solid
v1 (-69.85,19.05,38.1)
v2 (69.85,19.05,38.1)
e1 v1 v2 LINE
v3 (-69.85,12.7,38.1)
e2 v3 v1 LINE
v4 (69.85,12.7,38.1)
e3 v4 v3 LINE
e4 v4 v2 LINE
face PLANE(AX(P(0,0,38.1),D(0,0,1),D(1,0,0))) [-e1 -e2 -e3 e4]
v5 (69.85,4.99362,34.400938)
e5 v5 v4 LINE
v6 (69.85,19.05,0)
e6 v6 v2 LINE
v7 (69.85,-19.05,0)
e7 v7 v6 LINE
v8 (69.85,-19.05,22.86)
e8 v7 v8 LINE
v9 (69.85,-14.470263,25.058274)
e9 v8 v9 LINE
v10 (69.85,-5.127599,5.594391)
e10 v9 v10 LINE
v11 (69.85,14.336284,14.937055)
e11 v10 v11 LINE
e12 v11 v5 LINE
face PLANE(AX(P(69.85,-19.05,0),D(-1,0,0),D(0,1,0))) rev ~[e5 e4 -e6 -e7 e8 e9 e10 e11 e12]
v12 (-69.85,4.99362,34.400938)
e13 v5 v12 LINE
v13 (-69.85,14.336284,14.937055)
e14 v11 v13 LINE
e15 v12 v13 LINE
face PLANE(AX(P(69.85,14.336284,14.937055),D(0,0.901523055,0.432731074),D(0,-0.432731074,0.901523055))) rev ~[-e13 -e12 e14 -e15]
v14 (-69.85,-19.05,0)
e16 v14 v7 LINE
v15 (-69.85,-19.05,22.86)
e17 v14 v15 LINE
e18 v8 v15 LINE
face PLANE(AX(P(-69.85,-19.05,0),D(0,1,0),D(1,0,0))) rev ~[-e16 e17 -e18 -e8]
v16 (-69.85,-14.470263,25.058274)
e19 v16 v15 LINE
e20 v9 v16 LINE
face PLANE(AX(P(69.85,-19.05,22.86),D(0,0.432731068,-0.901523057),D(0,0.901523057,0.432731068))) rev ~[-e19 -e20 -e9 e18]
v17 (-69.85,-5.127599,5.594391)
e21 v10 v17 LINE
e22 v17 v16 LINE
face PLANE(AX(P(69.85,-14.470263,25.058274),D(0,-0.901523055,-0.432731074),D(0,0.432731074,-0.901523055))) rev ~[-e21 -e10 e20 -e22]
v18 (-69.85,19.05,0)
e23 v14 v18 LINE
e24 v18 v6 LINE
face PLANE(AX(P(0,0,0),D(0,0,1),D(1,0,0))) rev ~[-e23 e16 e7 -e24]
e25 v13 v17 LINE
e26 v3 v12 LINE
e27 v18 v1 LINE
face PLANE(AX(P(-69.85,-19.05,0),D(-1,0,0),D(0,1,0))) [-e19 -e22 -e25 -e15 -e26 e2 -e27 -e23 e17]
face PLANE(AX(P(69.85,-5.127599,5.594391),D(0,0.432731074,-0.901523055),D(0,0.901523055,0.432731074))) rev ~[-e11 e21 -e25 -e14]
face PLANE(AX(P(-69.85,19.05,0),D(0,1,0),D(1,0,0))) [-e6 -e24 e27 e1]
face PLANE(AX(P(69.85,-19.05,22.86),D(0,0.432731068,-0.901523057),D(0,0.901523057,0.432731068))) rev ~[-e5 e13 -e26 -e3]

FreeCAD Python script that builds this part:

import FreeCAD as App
import Part
import Sketcher
from FreeCAD import Vector
Q = App.Units.Quantity

doc = App.newDocument("Part")
params = doc.addObject("Spreadsheet::Sheet", "Params")
for row, (alias, value) in enumerate([
    ("sketch1_width", "5.5 in"),
    ("sketch1_height", "1.5 in"),
    ("pad1_length", "1.5 in"),
    ("sketch2_height", "0.6 in"),
    ("sketch2_width", "1.25 in"),
    ("sketch3_length", "0.85 in"),
], start=1):
    params.set(f"A{row}", alias)
    params.set(f"B{row}", "=" + value)
    params.setAlias(f"B{row}", alias)

body = doc.addObject("PartDesign::Body", "Body")

# Sketch on XY plane
sketch1 = doc.addObject("Sketcher::SketchObject", "Sketch")
body.addObject(sketch1)
sketch1.AttachmentSupport = (doc.XY_Plane, [""])
sketch1.MapMode = "FlatFace"
sketch1.addGeometry([
    Part.LineSegment(Vector(-70, 19, 0), Vector(-70, -19, 0)),
    Part.LineSegment(Vector(-70, -19, 0), Vector(70, -19, 0)),
    Part.LineSegment(Vector(70, -19, 0), Vector(70, 19, 0)),
    Part.LineSegment(Vector(70, 19, 0), Vector(-70, 19, 0)),
], False)
sketch1.addConstraint([
    Sketcher.Constraint("Coincident", 0, 2, 1, 1),
    Sketcher.Constraint("Coincident", 1, 2, 2, 1),
    Sketcher.Constraint("Coincident", 2, 2, 3, 1),
    Sketcher.Constraint("Coincident", 3, 2, 0, 1),
    Sketcher.Constraint("Vertical", 0),
    Sketcher.Constraint("Horizontal", 1),
    Sketcher.Constraint("Vertical", 2),
    Sketcher.Constraint("Horizontal", 3),
    Sketcher.Constraint("Symmetric", 0, 2, 2, 2, -1, 1),
    Sketcher.Constraint("DistanceX", 1, 1, 1, 2, Q("5.5 in")),
    Sketcher.Constraint("DistanceY", 0, 2, 0, 1, Q("1.5 in")),
])
sketch1.setExpression("Constraints[9]", "Params.sketch1_width")
sketch1.setExpression("Constraints[10]", "Params.sketch1_height")
pad1 = doc.addObject("PartDesign::Pad", "Pad")
body.addObject(pad1)
pad1.Profile = sketch1
pad1.setExpression("Length", "Params.pad1_length")

# Sketch on YZ plane
sketch2 = doc.addObject("Sketcher::SketchObject", "Sketch001")
body.addObject(sketch2)
sketch2.AttachmentSupport = (doc.YZ_Plane, [""])
sketch2.MapMode = "FlatFace"
sketch2.AttachmentOffset = App.Placement(Vector(0, 0, 2.75 * 25.4), App.Rotation())
sketch2.addGeometry([
    Part.LineSegment(Vector(-19, 23, 0), Vector(13, 38, 0)),
    Part.LineSegment(Vector(13, 38, 0), Vector(-19, 38, 0)),
    Part.LineSegment(Vector(-19, 38, 0), Vector(-19, 23, 0)),
], False)
sketch2.addConstraint([
    Sketcher.Constraint("Coincident", 0, 2, 1, 1),
    Sketcher.Constraint("Coincident", 1, 2, 2, 1),
    Sketcher.Constraint("Coincident", 2, 2, 0, 1),
    Sketcher.Constraint("Horizontal", 1),
    Sketcher.Constraint("Vertical", 2),
    Sketcher.Constraint("DistanceY", 2, 2, 2, 1, Q("0.6 in")),
    Sketcher.Constraint("DistanceX", 1, 2, 1, 1, Q("1.25 in")),
    Sketcher.Constraint("DistanceX", -1, 1, 0, 2, Q("0.5 in")),
    Sketcher.Constraint("DistanceY", -1, 1, 0, 2, Q("1.5 in")),
])
sketch2.setExpression("Constraints[5]", "Params.sketch2_height")
sketch2.setExpression("Constraints[6]", "Params.sketch2_width")
pocket1 = doc.addObject("PartDesign::Pocket", "Pocket")
body.addObject(pocket1)
pocket1.Profile = sketch2
pocket1.Type = "ThroughAll"

# Sketch on YZ plane
sketch3 = doc.addObject("Sketcher::SketchObject", "Sketch002")
body.addObject(sketch3)
sketch3.AttachmentSupport = (doc.YZ_Plane, [""])
sketch3.MapMode = "FlatFace"
sketch3.AttachmentOffset = App.Placement(Vector(0, 0, 2.75 * 25.4), App.Rotation())
sketch3.addGeometry([
    Part.LineSegment(Vector(14, 15, 0), Vector(5, 34, 0)),
    Part.LineSegment(Vector(5, 34, 0), Vector(-14, 25, 0)),
    Part.LineSegment(Vector(-14, 25, 0), Vector(-5, 6, 0)),
    Part.LineSegment(Vector(-5, 6, 0), Vector(14, 15, 0)),
], False)
sketch3.addConstraint([
    Sketcher.Constraint("Coincident", 0, 2, 1, 1),
    Sketcher.Constraint("Coincident", 1, 2, 2, 1),
    Sketcher.Constraint("Coincident", 2, 2, 3, 1),
    Sketcher.Constraint("Coincident", 3, 2, 0, 1),
    Sketcher.Constraint("Perpendicular", 0, 1),
    Sketcher.Constraint("Perpendicular", 1, 2),
    Sketcher.Constraint("Perpendicular", 2, 3),
    Sketcher.Constraint("Equal", 0, 1),
    Sketcher.Constraint("Distance", 0, Q("0.85 in")),
    Sketcher.Constraint("DistanceX", 2, 2, -1, 1, Q("5.127599 mm")),
    Sketcher.Constraint("DistanceX", -1, 1, 0, 2, Q("4.99362 mm")),
    Sketcher.Constraint("DistanceY", -1, 1, 2, 2, Q("5.594391 mm")),
])
sketch3.setExpression("Constraints[8]", "Params.sketch3_length")
pocket2 = doc.addObject("PartDesign::Pocket", "Pocket001")
body.addObject(pocket2)
pocket2.Profile = sketch3
pocket2.Type = "ThroughAll"

doc.recompute()
